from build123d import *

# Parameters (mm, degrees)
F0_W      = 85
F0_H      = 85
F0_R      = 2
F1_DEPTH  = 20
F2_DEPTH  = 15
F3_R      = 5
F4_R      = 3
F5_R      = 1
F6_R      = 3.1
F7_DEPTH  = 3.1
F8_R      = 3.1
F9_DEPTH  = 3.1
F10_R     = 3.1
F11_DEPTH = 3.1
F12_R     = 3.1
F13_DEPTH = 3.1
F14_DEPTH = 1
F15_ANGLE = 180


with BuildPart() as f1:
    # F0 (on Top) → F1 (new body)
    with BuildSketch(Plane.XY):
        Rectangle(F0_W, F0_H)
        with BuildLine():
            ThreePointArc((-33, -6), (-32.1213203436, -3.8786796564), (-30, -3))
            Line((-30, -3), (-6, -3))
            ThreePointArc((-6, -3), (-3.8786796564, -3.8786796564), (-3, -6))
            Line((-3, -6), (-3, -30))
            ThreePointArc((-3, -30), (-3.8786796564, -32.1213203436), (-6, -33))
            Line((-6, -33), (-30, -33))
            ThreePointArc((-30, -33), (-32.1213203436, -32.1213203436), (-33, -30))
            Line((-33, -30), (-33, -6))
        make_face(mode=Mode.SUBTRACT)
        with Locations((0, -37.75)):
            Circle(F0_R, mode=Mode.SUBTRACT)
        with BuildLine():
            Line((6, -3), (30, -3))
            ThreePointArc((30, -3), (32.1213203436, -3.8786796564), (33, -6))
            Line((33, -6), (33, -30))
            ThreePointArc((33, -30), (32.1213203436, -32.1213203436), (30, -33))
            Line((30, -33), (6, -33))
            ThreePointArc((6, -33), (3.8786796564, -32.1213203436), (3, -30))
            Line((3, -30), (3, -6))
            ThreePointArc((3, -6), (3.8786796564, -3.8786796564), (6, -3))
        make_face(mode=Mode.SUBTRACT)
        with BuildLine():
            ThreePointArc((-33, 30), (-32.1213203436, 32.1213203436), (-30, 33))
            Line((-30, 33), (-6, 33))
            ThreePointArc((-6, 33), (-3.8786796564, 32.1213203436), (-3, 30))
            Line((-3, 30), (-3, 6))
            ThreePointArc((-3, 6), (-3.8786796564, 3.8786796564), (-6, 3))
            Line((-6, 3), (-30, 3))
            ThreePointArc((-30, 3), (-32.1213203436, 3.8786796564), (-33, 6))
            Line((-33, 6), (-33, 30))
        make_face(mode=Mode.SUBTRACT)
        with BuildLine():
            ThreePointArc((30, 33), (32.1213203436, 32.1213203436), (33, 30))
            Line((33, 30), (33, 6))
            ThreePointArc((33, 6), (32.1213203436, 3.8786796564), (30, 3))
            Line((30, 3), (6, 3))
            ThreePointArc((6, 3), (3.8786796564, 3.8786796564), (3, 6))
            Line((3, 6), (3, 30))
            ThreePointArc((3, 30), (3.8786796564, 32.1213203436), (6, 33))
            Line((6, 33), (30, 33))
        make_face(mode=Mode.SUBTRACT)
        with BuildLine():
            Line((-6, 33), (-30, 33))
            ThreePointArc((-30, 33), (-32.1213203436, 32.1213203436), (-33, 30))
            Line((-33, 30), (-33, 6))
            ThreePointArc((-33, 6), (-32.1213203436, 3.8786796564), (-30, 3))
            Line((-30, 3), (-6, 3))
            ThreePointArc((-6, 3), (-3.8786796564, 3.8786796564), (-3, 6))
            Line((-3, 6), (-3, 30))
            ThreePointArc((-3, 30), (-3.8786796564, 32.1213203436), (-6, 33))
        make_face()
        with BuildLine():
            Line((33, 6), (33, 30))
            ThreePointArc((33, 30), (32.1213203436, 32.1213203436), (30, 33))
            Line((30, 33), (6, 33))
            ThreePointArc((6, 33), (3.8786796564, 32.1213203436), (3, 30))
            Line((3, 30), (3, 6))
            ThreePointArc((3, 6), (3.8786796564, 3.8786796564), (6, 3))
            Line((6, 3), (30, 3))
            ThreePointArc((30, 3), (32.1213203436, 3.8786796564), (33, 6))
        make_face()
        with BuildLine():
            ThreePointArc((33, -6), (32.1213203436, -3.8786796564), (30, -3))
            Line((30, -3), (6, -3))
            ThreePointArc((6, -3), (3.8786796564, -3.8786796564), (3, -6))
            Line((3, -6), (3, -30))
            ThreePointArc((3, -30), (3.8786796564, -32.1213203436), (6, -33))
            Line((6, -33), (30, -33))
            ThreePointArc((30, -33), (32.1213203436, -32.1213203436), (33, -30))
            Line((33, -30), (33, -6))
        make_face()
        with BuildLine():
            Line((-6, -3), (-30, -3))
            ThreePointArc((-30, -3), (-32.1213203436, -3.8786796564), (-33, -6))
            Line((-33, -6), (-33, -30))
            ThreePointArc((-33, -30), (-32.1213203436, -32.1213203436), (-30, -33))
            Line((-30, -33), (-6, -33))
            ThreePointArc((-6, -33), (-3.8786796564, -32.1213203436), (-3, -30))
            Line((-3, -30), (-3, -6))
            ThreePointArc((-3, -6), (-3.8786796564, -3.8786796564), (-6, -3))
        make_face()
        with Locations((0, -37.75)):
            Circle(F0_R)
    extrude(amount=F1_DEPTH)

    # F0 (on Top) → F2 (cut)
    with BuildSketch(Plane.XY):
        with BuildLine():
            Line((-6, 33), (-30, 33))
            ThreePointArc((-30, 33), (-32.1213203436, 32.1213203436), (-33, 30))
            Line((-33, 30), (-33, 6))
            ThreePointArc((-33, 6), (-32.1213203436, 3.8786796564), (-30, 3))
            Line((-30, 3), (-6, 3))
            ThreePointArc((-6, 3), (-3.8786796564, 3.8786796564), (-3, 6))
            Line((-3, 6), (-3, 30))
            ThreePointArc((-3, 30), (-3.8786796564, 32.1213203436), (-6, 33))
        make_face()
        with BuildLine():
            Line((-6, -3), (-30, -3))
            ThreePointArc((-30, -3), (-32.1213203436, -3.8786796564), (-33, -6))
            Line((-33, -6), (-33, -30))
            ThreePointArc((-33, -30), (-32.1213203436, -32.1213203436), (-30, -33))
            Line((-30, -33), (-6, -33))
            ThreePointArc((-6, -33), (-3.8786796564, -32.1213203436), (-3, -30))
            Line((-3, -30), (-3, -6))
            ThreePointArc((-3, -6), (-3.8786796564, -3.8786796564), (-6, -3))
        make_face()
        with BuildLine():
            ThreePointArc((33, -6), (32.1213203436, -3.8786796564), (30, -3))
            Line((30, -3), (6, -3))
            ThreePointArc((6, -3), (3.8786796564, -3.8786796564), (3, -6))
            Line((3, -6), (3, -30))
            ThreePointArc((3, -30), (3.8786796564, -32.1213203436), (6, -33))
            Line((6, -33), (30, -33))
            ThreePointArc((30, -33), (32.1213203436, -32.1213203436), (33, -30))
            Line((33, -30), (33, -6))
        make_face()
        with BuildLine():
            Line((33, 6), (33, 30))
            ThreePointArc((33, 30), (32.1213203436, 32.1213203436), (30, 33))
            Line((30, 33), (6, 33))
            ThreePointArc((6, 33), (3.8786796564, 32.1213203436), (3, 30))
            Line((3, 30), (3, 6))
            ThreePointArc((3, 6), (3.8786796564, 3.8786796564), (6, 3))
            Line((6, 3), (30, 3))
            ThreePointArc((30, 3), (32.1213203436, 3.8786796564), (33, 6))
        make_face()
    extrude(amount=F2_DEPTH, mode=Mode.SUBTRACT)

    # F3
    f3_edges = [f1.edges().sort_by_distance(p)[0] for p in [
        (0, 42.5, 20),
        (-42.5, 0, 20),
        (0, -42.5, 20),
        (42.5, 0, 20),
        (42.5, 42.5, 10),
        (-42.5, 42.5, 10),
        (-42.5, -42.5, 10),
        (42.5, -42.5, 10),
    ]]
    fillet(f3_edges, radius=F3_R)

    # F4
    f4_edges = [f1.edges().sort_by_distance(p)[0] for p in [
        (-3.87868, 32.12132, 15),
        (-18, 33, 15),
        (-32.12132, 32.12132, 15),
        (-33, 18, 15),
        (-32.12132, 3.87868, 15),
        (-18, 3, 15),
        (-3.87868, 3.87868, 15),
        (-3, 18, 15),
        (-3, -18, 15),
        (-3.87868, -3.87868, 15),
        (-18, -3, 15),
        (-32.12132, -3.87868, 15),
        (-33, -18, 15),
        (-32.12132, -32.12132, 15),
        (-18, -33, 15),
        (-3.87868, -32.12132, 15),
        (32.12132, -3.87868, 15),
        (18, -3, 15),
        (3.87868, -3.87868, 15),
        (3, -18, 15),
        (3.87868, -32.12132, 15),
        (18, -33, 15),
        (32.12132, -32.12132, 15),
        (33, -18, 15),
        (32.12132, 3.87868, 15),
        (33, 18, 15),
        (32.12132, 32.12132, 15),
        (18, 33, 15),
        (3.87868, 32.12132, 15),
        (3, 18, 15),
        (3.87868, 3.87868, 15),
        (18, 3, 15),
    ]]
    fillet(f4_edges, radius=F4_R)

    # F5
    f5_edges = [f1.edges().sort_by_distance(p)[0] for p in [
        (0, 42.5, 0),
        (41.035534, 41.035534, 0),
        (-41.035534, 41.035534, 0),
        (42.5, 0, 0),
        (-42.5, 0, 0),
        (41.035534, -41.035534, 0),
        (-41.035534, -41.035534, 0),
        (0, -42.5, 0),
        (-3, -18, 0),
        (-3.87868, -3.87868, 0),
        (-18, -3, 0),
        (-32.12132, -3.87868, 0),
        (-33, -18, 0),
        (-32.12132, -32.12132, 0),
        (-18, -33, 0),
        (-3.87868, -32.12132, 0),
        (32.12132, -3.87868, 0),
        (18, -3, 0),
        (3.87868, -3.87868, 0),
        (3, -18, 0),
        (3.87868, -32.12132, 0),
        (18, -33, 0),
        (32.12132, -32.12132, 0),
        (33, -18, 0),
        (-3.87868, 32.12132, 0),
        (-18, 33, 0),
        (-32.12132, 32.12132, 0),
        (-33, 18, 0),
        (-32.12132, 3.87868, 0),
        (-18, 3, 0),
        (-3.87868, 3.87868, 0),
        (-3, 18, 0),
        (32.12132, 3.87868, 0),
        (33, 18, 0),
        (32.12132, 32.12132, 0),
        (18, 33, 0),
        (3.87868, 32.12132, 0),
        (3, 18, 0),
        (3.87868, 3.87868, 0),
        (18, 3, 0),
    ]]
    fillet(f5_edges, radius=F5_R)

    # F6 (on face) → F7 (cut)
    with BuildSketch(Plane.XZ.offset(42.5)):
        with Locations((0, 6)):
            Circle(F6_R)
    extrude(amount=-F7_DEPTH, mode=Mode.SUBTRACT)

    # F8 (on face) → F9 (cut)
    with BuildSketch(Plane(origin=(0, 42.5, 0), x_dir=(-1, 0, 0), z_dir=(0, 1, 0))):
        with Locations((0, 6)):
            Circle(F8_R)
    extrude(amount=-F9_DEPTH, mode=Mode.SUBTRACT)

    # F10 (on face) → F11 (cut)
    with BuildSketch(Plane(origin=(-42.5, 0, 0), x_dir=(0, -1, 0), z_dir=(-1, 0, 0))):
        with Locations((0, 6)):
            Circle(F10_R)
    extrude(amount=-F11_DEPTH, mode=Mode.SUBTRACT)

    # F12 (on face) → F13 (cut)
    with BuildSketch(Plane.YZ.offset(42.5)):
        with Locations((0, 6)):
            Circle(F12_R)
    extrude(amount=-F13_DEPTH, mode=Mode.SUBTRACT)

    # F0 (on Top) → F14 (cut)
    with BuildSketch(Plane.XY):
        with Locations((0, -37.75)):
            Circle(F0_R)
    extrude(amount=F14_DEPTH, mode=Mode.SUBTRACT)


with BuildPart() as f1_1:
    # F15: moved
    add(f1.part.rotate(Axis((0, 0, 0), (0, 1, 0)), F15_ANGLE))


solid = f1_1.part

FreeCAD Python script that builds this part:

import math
import FreeCAD as App
import Part
import Sketcher
from FreeCAD import Vector
Q = App.Units.Quantity


def edges_at(feature, points):
    """Names of the edges that pass closest to the given points."""
    edges = feature.Shape.Edges
    near = lambda p: min(range(len(edges)), key=lambda i: edges[i].distToShape(Part.Vertex(*p))[0])
    return sorted({f"Edge{near(p) + 1}" for p in points})


def add_polygon(sketch, points):
    """Adds a closed chain of lines whose ends are joined by coincident constraints."""
    first, n = sketch.GeometryCount, len(points)
    for a, b in zip(points, points[1:] + points[:1]):
        sketch.addGeometry(Part.LineSegment(App.Vector(*a, 0), App.Vector(*b, 0)), False)
    for i in range(n):
        sketch.addConstraint(Sketcher.Constraint("Coincident", first + i, 2, first + (i + 1) % n, 1))

doc = App.newDocument("Part")
body = doc.addObject("PartDesign::Body", "Body")

sketch1 = doc.addObject("Sketcher::SketchObject", "Sketch")
body.addObject(sketch1)
sketch1.AttachmentSupport = (doc.XY_Plane, [""])
sketch1.MapMode = "FlatFace"
add_polygon(sketch1, [(-42, 42), (-42, -42), (42, -42), (42, 42)])
sketch1.addConstraint(Sketcher.Constraint("Vertical", 0))
sketch1.addConstraint(Sketcher.Constraint("Horizontal", 1))
sketch1.addConstraint(Sketcher.Constraint("Vertical", 2))
sketch1.addConstraint(Sketcher.Constraint("Horizontal", 3))
sketch1.addConstraint(Sketcher.Constraint("Symmetric", 0, 2, 2, 2, -1, 1))
sketch1.addConstraint(Sketcher.Constraint("Equal", 3, 0))
sketch1.addConstraint(Sketcher.Constraint("DistanceX", 1, 1, 1, 2, Q("85 mm")))
pad1 = doc.addObject("PartDesign::Pad", "Pad")
body.addObject(pad1)
pad1.Profile = sketch1
pad1.Length = 20

sketch2 = doc.addObject("Sketcher::SketchObject", "Sketch001")
body.addObject(sketch2)
sketch2.AttachmentSupport = (doc.XY_Plane, [""])
sketch2.MapMode = "FlatFace"
sketch2.addGeometry(Part.LineSegment(Vector(-6, 33, 0), Vector(-30, 33, 0)), False)
sketch2.addGeometry(Part.ArcOfCircle(Part.Circle(Vector(-30, 30, 0), Vector(0, 0, 1), 3), math.radians(90), math.radians(180)), False)
sketch2.addGeometry(Part.LineSegment(Vector(-33, 30, 0), Vector(-33, 6, 0)), False)
sketch2.addGeometry(Part.ArcOfCircle(Part.Circle(Vector(-30, 6, 0), Vector(0, 0, 1), 3), math.radians(180), math.radians(270)), False)
sketch2.addGeometry(Part.LineSegment(Vector(-30, 3, 0), Vector(-6, 3, 0)), False)
sketch2.addGeometry(Part.ArcOfCircle(Part.Circle(Vector(-6, 6, 0), Vector(0, 0, 1), 3), math.radians(-90), math.radians(0)), False)
sketch2.addGeometry(Part.LineSegment(Vector(-3, 6, 0), Vector(-3, 30, 0)), False)
sketch2.addGeometry(Part.ArcOfCircle(Part.Circle(Vector(-6, 30, 0), Vector(0, 0, 1), 3), math.radians(0), math.radians(90)), False)
sketch2.addGeometry(Part.LineSegment(Vector(-6, -3, 0), Vector(-30, -3, 0)), False)
sketch2.addGeometry(Part.ArcOfCircle(Part.Circle(Vector(-30, -6, 0), Vector(0, 0, 1), 3), math.radians(90), math.radians(180)), False)
sketch2.addGeometry(Part.LineSegment(Vector(-33, -6, 0), Vector(-33, -30, 0)), False)
sketch2.addGeometry(Part.ArcOfCircle(Part.Circle(Vector(-30, -30, 0), Vector(0, 0, 1), 3), math.radians(180), math.radians(270)), False)
sketch2.addGeometry(Part.LineSegment(Vector(-30, -33, 0), Vector(-6, -33, 0)), False)
sketch2.addGeometry(Part.ArcOfCircle(Part.Circle(Vector(-6, -30, 0), Vector(0, 0, 1), 3), math.radians(-90), math.radians(0)), False)
sketch2.addGeometry(Part.LineSegment(Vector(-3, -30, 0), Vector(-3, -6, 0)), False)
sketch2.addGeometry(Part.ArcOfCircle(Part.Circle(Vector(-6, -6, 0), Vector(0, 0, 1), 3), math.radians(0), math.radians(90)), False)
sketch2.addGeometry(Part.ArcOfCircle(Part.Circle(Vector(30, -6, 0), Vector(0, 0, 1), 3), math.radians(0), math.radians(90)), False)
sketch2.addGeometry(Part.LineSegment(Vector(30, -3, 0), Vector(6, -3, 0)), False)
sketch2.addGeometry(Part.ArcOfCircle(Part.Circle(Vector(6, -6, 0), Vector(0, 0, 1), 3), math.radians(90), math.radians(180)), False)
sketch2.addGeometry(Part.LineSegment(Vector(3, -6, 0), Vector(3, -30, 0)), False)
sketch2.addGeometry(Part.ArcOfCircle(Part.Circle(Vector(6, -30, 0), Vector(0, 0, 1), 3), math.radians(180), math.radians(270)), False)
sketch2.addGeometry(Part.LineSegment(Vector(6, -33, 0), Vector(30, -33, 0)), False)
sketch2.addGeometry(Part.ArcOfCircle(Part.Circle(Vector(30, -30, 0), Vector(0, 0, 1), 3), math.radians(-90), math.radians(0)), False)
sketch2.addGeometry(Part.LineSegment(Vector(33, -30, 0), Vector(33, -6, 0)), False)
sketch2.addGeometry(Part.LineSegment(Vector(33, 6, 0), Vector(33, 30, 0)), False)
sketch2.addGeometry(Part.ArcOfCircle(Part.Circle(Vector(30, 30, 0), Vector(0, 0, 1), 3), math.radians(0), math.radians(90)), False)
sketch2.addGeometry(Part.LineSegment(Vector(30, 33, 0), Vector(6, 33, 0)), False)
sketch2.addGeometry(Part.ArcOfCircle(Part.Circle(Vector(6, 30, 0), Vector(0, 0, 1), 3), math.radians(90), math.radians(180)), False)
sketch2.addGeometry(Part.LineSegment(Vector(3, 30, 0), Vector(3, 6, 0)), False)
sketch2.addGeometry(Part.ArcOfCircle(Part.Circle(Vector(6, 6, 0), Vector(0, 0, 1), 3), math.radians(180), math.radians(270)), False)
sketch2.addGeometry(Part.LineSegment(Vector(6, 3, 0), Vector(30, 3, 0)), False)
sketch2.addGeometry(Part.ArcOfCircle(Part.Circle(Vector(30, 6, 0), Vector(0, 0, 1), 3), math.radians(-90), math.radians(0)), False)
sketch2.addConstraint(Sketcher.Constraint("Tangent", 0, 2, 1, 1))
sketch2.addConstraint(Sketcher.Constraint("Tangent", 1, 2, 2, 1))
sketch2.addConstraint(Sketcher.Constraint("Tangent", 2, 2, 3, 1))
sketch2.addConstraint(Sketcher.Constraint("Tangent", 3, 2, 4, 1))
sketch2.addConstraint(Sketcher.Constraint("Tangent", 4, 2, 5, 1))
sketch2.addConstraint(Sketcher.Constraint("Tangent", 5, 2, 6, 1))
sketch2.addConstraint(Sketcher.Constraint("Tangent", 6, 2, 7, 1))
sketch2.addConstraint(Sketcher.Constraint("Tangent", 7, 2, 0, 1))
sketch2.addConstraint(Sketcher.Constraint("Tangent", 8, 2, 9, 1))
sketch2.addConstraint(Sketcher.Constraint("Tangent", 9, 2, 10, 1))
sketch2.addConstraint(Sketcher.Constraint("Tangent", 10, 2, 11, 1))
sketch2.addConstraint(Sketcher.Constraint("Tangent", 11, 2, 12, 1))
sketch2.addConstraint(Sketcher.Constraint("Tangent", 12, 2, 13, 1))
sketch2.addConstraint(Sketcher.Constraint("Tangent", 13, 2, 14, 1))
sketch2.addConstraint(Sketcher.Constraint("Tangent", 14, 2, 15, 1))
sketch2.addConstraint(Sketcher.Constraint("Tangent", 15, 2, 8, 1))
sketch2.addConstraint(Sketcher.Constraint("Tangent", 16, 2, 17, 1))
sketch2.addConstraint(Sketcher.Constraint("Tangent", 17, 2, 18, 1))
sketch2.addConstraint(Sketcher.Constraint("Tangent", 18, 2, 19, 1))
sketch2.addConstraint(Sketcher.Constraint("Tangent", 19, 2, 20, 1))
sketch2.addConstraint(Sketcher.Constraint("Tangent", 20, 2, 21, 1))
sketch2.addConstraint(Sketcher.Constraint("Tangent", 21, 2, 22, 1))
sketch2.addConstraint(Sketcher.Constraint("Tangent", 22, 2, 23, 1))
sketch2.addConstraint(Sketcher.Constraint("Tangent", 23, 2, 16, 1))
sketch2.addConstraint(Sketcher.Constraint("Tangent", 24, 2, 25, 1))
sketch2.addConstraint(Sketcher.Constraint("Tangent", 25, 2, 26, 1))
sketch2.addConstraint(Sketcher.Constraint("Tangent", 26, 2, 27, 1))
sketch2.addConstraint(Sketcher.Constraint("Tangent", 27, 2, 28, 1))
sketch2.addConstraint(Sketcher.Constraint("Tangent", 28, 2, 29, 1))
sketch2.addConstraint(Sketcher.Constraint("Tangent", 29, 2, 30, 1))
sketch2.addConstraint(Sketcher.Constraint("Tangent", 30, 2, 31, 1))
sketch2.addConstraint(Sketcher.Constraint("Tangent", 31, 2, 24, 1))
sketch2.addConstraint(Sketcher.Constraint("Horizontal", 0))
sketch2.addConstraint(Sketcher.Constraint("Vertical", 2))
sketch2.addConstraint(Sketcher.Constraint("Horizontal", 4))
sketch2.addConstraint(Sketcher.Constraint("Vertical", 6))
sketch2.addConstraint(Sketcher.Constraint("Horizontal", 8))
sketch2.addConstraint(Sketcher.Constraint("Vertical", 10))
sketch2.addConstraint(Sketcher.Constraint("Horizontal", 12))
sketch2.addConstraint(Sketcher.Constraint("Vertical", 14))
sketch2.addConstraint(Sketcher.Constraint("Horizontal", 17))
sketch2.addConstraint(Sketcher.Constraint("Vertical", 19))
sketch2.addConstraint(Sketcher.Constraint("Horizontal", 21))
sketch2.addConstraint(Sketcher.Constraint("Vertical", 23))
sketch2.addConstraint(Sketcher.Constraint("Vertical", 24))
sketch2.addConstraint(Sketcher.Constraint("Horizontal", 26))
sketch2.addConstraint(Sketcher.Constraint("Vertical", 28))
sketch2.addConstraint(Sketcher.Constraint("Horizontal", 30))
sketch2.addConstraint(Sketcher.Constraint("Equal", 1, 3))
sketch2.addConstraint(Sketcher.Constraint("Equal", 3, 5))
sketch2.addConstraint(Sketcher.Constraint("Equal", 5, 7))
sketch2.addConstraint(Sketcher.Constraint("Equal", 7, 9))
sketch2.addConstraint(Sketcher.Constraint("Equal", 9, 11))
sketch2.addConstraint(Sketcher.Constraint("Equal", 11, 13))
sketch2.addConstraint(Sketcher.Constraint("Equal", 13, 15))
sketch2.addConstraint(Sketcher.Constraint("Equal", 15, 16))
sketch2.addConstraint(Sketcher.Constraint("Equal", 16, 18))
sketch2.addConstraint(Sketcher.Constraint("Equal", 18, 20))
sketch2.addConstraint(Sketcher.Constraint("Equal", 20, 22))
sketch2.addConstraint(Sketcher.Constraint("Equal", 22, 25))
sketch2.addConstraint(Sketcher.Constraint("Equal", 25, 27))
sketch2.addConstraint(Sketcher.Constraint("Equal", 27, 29))
sketch2.addConstraint(Sketcher.Constraint("Equal", 29, 31))
sketch2.addConstraint(Sketcher.Constraint("Symmetric", 3, 3, 16, 3, -1, 1))
sketch2.addConstraint(Sketcher.Constraint("Symmetric", 7, 3, 20, 3, -1, 1))
sketch2.addConstraint(Sketcher.Constraint("Symmetric", 11, 3, 25, 3, -1, 1))
sketch2.addConstraint(Sketcher.Constraint("Symmetric", 15, 3, 29, 3, -1, 1))
sketch2.addConstraint(Sketcher.Constraint("Symmetric", 9, 3, 16, 3, -2))
sketch2.addConstraint(Sketcher.Constraint("Symmetric", 13, 3, 20, 3, -2))
sketch2.addConstraint(Sketcher.Constraint("Equal", 30, 2))
sketch2.addConstraint(Sketcher.Constraint("Radius", 1, Q("3 mm")))
sketch2.addConstraint(Sketcher.Constraint("DistanceX", 0, 2, 0, 1, Q("24 mm")))
sketch2.addConstraint(Sketcher.Constraint("DistanceX", 1, 3, -1, 1, Q("30 mm")))
sketch2.addConstraint(Sketcher.Constraint("DistanceY", -1, 1, 1, 3, Q("30 mm")))
pocket1 = doc.addObject("PartDesign::Pocket", "Pocket")
body.addObject(pocket1)
pocket1.Profile = sketch2
pocket1.Length = 15
pocket1.Reversed = True
doc.recompute()

fillet = doc.addObject("PartDesign::Fillet", "Fillet")
body.addObject(fillet)
fillet.Base = (pocket1, edges_at(pocket1, [
    (0, 42.5, 20),
    (-42.5, 0, 20),
    (0, -42.5, 20),
    (42.5, 0, 20),
    (42.5, 42.5, 10),
    (-42.5, 42.5, 10),
    (-42.5, -42.5, 10),
    (42.5, -42.5, 10),
]))
fillet.Radius = 5
doc.recompute()

fillet2 = doc.addObject("PartDesign::Fillet", "Fillet001")
body.addObject(fillet2)
fillet2.Base = (fillet, edges_at(fillet, [
    (-3.879, 32.121, 15),
    (-18, 33, 15),
    (-32.121, 32.121, 15),
    (-33, 18, 15),
    (-32.121, 3.879, 15),
    (-18, 3, 15),
    (-3.879, 3.879, 15),
    (-3, 18, 15),
    (-3, -18, 15),
    (-3.879, -3.879, 15),
    (-18, -3, 15),
    (-32.121, -3.879, 15),
    (-33, -18, 15),
    (-32.121, -32.121, 15),
    (-18, -33, 15),
    (-3.879, -32.121, 15),
    (32.121, -3.879, 15),
    (18, -3, 15),
    (3.879, -3.879, 15),
    (3, -18, 15),
    (3.879, -32.121, 15),
    (18, -33, 15),
    (32.121, -32.121, 15),
    (33, -18, 15),
    (32.121, 3.879, 15),
    (33, 18, 15),
    (32.121, 32.121, 15),
    (18, 33, 15),
    (3.879, 32.121, 15),
    (3, 18, 15),
    (3.879, 3.879, 15),
    (18, 3, 15),
]))
fillet2.Radius = 3
doc.recompute()

fillet3 = doc.addObject("PartDesign::Fillet", "Fillet002")
body.addObject(fillet3)
fillet3.Base = (fillet2, edges_at(fillet2, [
    (0, 42.5, 0),
    (41.036, 41.036, 0),
    (-41.036, 41.036, 0),
    (42.5, 0, 0),
    (-42.5, 0, 0),
    (41.036, -41.036, 0),
    (-41.036, -41.036, 0),
    (0, -42.5, 0),
    (-3, -18, 0),
    (-3.879, -3.879, 0),
    (-18, -3, 0),
    (-32.121, -3.879, 0),
    (-33, -18, 0),
    (-32.121, -32.121, 0),
    (-18, -33, 0),
    (-3.879, -32.121, 0),
    (32.121, -3.879, 0),
    (18, -3, 0),
    (3.879, -3.879, 0),
    (3, -18, 0),
    (3.879, -32.121, 0),
    (18, -33, 0),
    (32.121, -32.121, 0),
    (33, -18, 0),
    (-3.879, 32.121, 0),
    (-18, 33, 0),
    (-32.121, 32.121, 0),
    (-33, 18, 0),
    (-32.121, 3.879, 0),
    (-18, 3, 0),
    (-3.879, 3.879, 0),
    (-3, 18, 0),
    (32.121, 3.879, 0),
    (33, 18, 0),
    (32.121, 32.121, 0),
    (18, 33, 0),
    (3.879, 32.121, 0),
    (3, 18, 0),
    (3.879, 3.879, 0),
    (18, 3, 0),
]))
fillet3.Radius = 1

sketch3 = doc.addObject("Sketcher::SketchObject", "Sketch002")
body.addObject(sketch3)
sketch3.AttachmentSupport = (doc.XZ_Plane, [""])
sketch3.MapMode = "FlatFace"
sketch3.AttachmentOffset = App.Placement(Vector(0, 0, 42.5), App.Rotation())
sketch3.addGeometry(Part.Circle(Vector(0, 6, 0), Vector(0, 0, 1), 3.1), False)
sketch3.addConstraint(Sketcher.Constraint("PointOnObject", 0, 3, -2))
sketch3.addConstraint(Sketcher.Constraint("Diameter", 0, Q("6.2 mm")))
sketch3.addConstraint(Sketcher.Constraint("DistanceY", -1, 1, 0, 3, Q("6 mm")))
pocket2 = doc.addObject("PartDesign::Pocket", "Pocket001")
body.addObject(pocket2)
pocket2.Profile = sketch3
pocket2.Length = 3.1

sketch4 = doc.addObject("Sketcher::SketchObject", "Sketch003")
body.addObject(sketch4)
sketch4.AttachmentSupport = (doc.XZ_Plane, [""])
sketch4.MapMode = "FlatFace"
sketch4.AttachmentOffset = App.Placement(Vector(0, 0, -42.5), App.Rotation())
sketch4.addGeometry(Part.Circle(Vector(0, 6, 0), Vector(0, 0, 1), 3.1), False)
sketch4.addConstraint(Sketcher.Constraint("PointOnObject", 0, 3, -2))
sketch4.addConstraint(Sketcher.Constraint("Diameter", 0, Q("6.2 mm")))
sketch4.addConstraint(Sketcher.Constraint("DistanceY", -1, 1, 0, 3, Q("6 mm")))
pocket3 = doc.addObject("PartDesign::Pocket", "Pocket002")
body.addObject(pocket3)
pocket3.Profile = sketch4
pocket3.Length = 3.1
pocket3.Reversed = True

sketch5 = doc.addObject("Sketcher::SketchObject", "Sketch004")
body.addObject(sketch5)
sketch5.AttachmentSupport = (doc.YZ_Plane, [""])
sketch5.MapMode = "FlatFace"
sketch5.AttachmentOffset = App.Placement(Vector(0, 0, -42.5), App.Rotation())
sketch5.addGeometry(Part.Circle(Vector(0, 6, 0), Vector(0, 0, 1), 3.1), False)
sketch5.addConstraint(Sketcher.Constraint("PointOnObject", 0, 3, -2))
sketch5.addConstraint(Sketcher.Constraint("Diameter", 0, Q("6.2 mm")))
sketch5.addConstraint(Sketcher.Constraint("DistanceY", -1, 1, 0, 3, Q("6 mm")))
pocket4 = doc.addObject("PartDesign::Pocket", "Pocket003")
body.addObject(pocket4)
pocket4.Profile = sketch5
pocket4.Length = 3.1
pocket4.Reversed = True

sketch6 = doc.addObject("Sketcher::SketchObject", "Sketch005")
body.addObject(sketch6)
sketch6.AttachmentSupport = (doc.YZ_Plane, [""])
sketch6.MapMode = "FlatFace"
sketch6.AttachmentOffset = App.Placement(Vector(0, 0, 42.5), App.Rotation())
sketch6.addGeometry(Part.Circle(Vector(0, 6, 0), Vector(0, 0, 1), 3.1), False)
sketch6.addConstraint(Sketcher.Constraint("PointOnObject", 0, 3, -2))
sketch6.addConstraint(Sketcher.Constraint("Diameter", 0, Q("6.2 mm")))
sketch6.addConstraint(Sketcher.Constraint("DistanceY", -1, 1, 0, 3, Q("6 mm")))
pocket5 = doc.addObject("PartDesign::Pocket", "Pocket004")
body.addObject(pocket5)
pocket5.Profile = sketch6
pocket5.Length = 3.1

sketch7 = doc.addObject("Sketcher::SketchObject", "Sketch006")
body.addObject(sketch7)
sketch7.AttachmentSupport = (doc.XY_Plane, [""])
sketch7.MapMode = "FlatFace"
sketch7.addGeometry(Part.Circle(Vector(0, -37.8, 0), Vector(0, 0, 1), 2), False)
sketch7.addConstraint(Sketcher.Constraint("PointOnObject", 0, 3, -2))
sketch7.addConstraint(Sketcher.Constraint("Diameter", 0, Q("4 mm")))
sketch7.addConstraint(Sketcher.Constraint("DistanceY", 0, 3, -1, 1, Q("37.75 mm")))
pocket6 = doc.addObject("PartDesign::Pocket", "Pocket005")
body.addObject(pocket6)
pocket6.Profile = sketch7
pocket6.Length = 1
pocket6.Reversed = True
body2 = doc.addObject("PartDesign::Body", "Body001")
doc.recompute()

body.Placement = App.Placement(Vector(0, 0, 0), App.Rotation(Vector(0, 1, 0), 180))
boolean = doc.addObject("PartDesign::Boolean", "Boolean")
body2.addObject(boolean)
boolean.Type = "Fuse"
boolean.addObjects([body])

doc.recompute()
